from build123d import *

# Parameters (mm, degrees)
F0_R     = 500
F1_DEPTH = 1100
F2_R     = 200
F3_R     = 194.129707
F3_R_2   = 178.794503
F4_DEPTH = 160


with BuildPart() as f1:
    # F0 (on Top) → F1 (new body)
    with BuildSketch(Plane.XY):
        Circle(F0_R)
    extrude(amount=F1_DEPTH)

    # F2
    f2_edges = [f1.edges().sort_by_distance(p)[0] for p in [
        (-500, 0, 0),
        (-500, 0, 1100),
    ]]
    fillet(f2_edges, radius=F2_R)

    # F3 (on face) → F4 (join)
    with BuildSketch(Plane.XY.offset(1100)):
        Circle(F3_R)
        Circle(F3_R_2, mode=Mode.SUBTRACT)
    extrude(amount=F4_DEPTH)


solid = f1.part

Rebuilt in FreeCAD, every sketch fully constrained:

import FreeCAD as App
import Part
import Sketcher


def edges_at(feature, points):
    """Names of the edges that pass closest to the given points."""
    edges = feature.Shape.Edges
    near = lambda p: min(range(len(edges)), key=lambda i: edges[i].distToShape(Part.Vertex(*p))[0])
    return sorted({f"Edge{near(p) + 1}" for p in points})

doc = App.newDocument("Part")
body = doc.addObject("PartDesign::Body", "Body")

# Sketch on XY plane
sketch1 = doc.addObject("Sketcher::SketchObject", "Sketch")
body.addObject(sketch1)
sketch1.AttachmentSupport = (doc.XY_Plane, [""])
sketch1.MapMode = "FlatFace"
sketch1.addGeometry(Part.Circle(App.Vector(0, 0, 0), App.Vector(0, 0, 1), 500), False)
sketch1.addConstraint(Sketcher.Constraint("Coincident", 0, 3, -1, 1))
sketch1.addConstraint(Sketcher.Constraint("Diameter", 0, 1000.0))
pad1 = doc.addObject("PartDesign::Pad", "Pad")
body.addObject(pad1)
pad1.Profile = sketch1
pad1.Length = 1100
doc.recompute()

fillet = doc.addObject("PartDesign::Fillet", "Fillet")
body.addObject(fillet)
fillet.Base = (pad1, edges_at(pad1, [(-500, 0, 0), (-500, 0, 1100)]))
fillet.Radius = 200

# Sketch on XY plane
sketch2 = doc.addObject("Sketcher::SketchObject", "Sketch001")
body.addObject(sketch2)
sketch2.AttachmentSupport = (doc.XY_Plane, [""])
sketch2.MapMode = "FlatFace"
sketch2.AttachmentOffset = App.Placement(App.Vector(0, 0, 1100), App.Rotation())
sketch2.addGeometry(Part.Circle(App.Vector(0, 0, 0), App.Vector(0, 0, 1), 194), False)
sketch2.addGeometry(Part.Circle(App.Vector(0, 0, 0), App.Vector(0, 0, 1), 179), False)
sketch2.addConstraint(Sketcher.Constraint("Coincident", 0, 3, -1, 1))
sketch2.addConstraint(Sketcher.Constraint("Coincident", 1, 3, -1, 1))
sketch2.addConstraint(Sketcher.Constraint("Diameter", 0, 388.259414))
sketch2.addConstraint(Sketcher.Constraint("Diameter", 1, 357.589006))
pad2 = doc.addObject("PartDesign::Pad", "Pad001")
body.addObject(pad2)
pad2.Profile = sketch2
pad2.Length = 160

doc.recompute()
